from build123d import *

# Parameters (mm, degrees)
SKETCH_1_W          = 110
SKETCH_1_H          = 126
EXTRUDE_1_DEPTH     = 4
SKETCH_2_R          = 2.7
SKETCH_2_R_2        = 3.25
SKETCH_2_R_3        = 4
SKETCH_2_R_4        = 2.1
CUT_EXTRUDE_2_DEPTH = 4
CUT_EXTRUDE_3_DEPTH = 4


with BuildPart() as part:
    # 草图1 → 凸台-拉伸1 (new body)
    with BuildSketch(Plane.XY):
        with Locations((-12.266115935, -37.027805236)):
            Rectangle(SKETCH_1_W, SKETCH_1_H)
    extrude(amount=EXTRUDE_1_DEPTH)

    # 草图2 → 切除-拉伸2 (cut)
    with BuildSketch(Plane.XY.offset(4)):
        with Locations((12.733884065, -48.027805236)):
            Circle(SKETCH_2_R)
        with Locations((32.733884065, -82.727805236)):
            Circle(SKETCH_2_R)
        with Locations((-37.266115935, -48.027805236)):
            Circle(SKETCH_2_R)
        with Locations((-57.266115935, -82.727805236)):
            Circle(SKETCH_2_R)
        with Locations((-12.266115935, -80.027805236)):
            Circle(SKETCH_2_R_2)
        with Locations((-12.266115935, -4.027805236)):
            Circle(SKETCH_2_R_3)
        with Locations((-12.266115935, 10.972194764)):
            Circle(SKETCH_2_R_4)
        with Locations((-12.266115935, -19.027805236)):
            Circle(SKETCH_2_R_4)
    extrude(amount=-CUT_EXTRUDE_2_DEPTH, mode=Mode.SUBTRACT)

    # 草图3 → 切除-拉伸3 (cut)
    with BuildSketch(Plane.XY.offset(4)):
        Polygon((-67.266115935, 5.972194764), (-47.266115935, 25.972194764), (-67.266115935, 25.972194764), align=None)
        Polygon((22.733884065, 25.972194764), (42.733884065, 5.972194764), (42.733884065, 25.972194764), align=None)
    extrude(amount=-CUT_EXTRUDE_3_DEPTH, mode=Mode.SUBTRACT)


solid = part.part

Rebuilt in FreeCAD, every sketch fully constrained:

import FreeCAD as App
import Part
import Sketcher

V = App.Vector
Q = App.Units.Quantity

doc = App.newDocument("Part")
body = doc.addObject("PartDesign::Body", "Body")

# Sketch on XY plane
sketch1 = body.newObject("Sketcher::SketchObject", "Sketch")
sketch1.AttachmentSupport = (doc.getObject("XY_Plane"), [""])
sketch1.MapMode = "FlatFace"
sketch1.addGeometry(Part.LineSegment(V(-67, 26, 0), V(-67, -100, 0)), False)
sketch1.addGeometry(Part.LineSegment(V(-67, -100, 0), V(43, -100, 0)), False)
sketch1.addGeometry(Part.LineSegment(V(43, -100, 0), V(43, 26, 0)), False)
sketch1.addGeometry(Part.LineSegment(V(43, 26, 0), V(-67, 26, 0)), False)
sketch1.addConstraint(Sketcher.Constraint("Coincident", 0, 2, 1, 1))
sketch1.addConstraint(Sketcher.Constraint("Coincident", 1, 2, 2, 1))
sketch1.addConstraint(Sketcher.Constraint("Coincident", 2, 2, 3, 1))
sketch1.addConstraint(Sketcher.Constraint("Coincident", 3, 2, 0, 1))
sketch1.addConstraint(Sketcher.Constraint("Vertical", 0))
sketch1.addConstraint(Sketcher.Constraint("Horizontal", 1))
sketch1.addConstraint(Sketcher.Constraint("Vertical", 2))
sketch1.addConstraint(Sketcher.Constraint("Horizontal", 3))
sketch1.addConstraint(Sketcher.Constraint("DistanceX", 1, 1, 1, 2, Q("110 mm")))
sketch1.addConstraint(Sketcher.Constraint("DistanceY", 0, 2, 0, 1, Q("126 mm")))
sketch1.addConstraint(Sketcher.Constraint("DistanceX", 0, 2, -1, 1, Q("67.266116 mm")))
sketch1.addConstraint(Sketcher.Constraint("DistanceY", 0, 2, -1, 1, Q("100.027805 mm")))
pad1 = body.newObject("PartDesign::Pad", "Pad")
pad1.Profile = sketch1
pad1.Length = 4

# Sketch on XY plane
sketch2 = body.newObject("Sketcher::SketchObject", "Sketch001")
sketch2.AttachmentSupport = (doc.getObject("XY_Plane"), [""])
sketch2.MapMode = "FlatFace"
sketch2.AttachmentOffset = App.Placement(V(0, 0, 4), App.Rotation())
sketch2.addGeometry(Part.Circle(V(12.7, -48, 0), V(0, 0, 1), 2.7), False)
sketch2.addGeometry(Part.Circle(V(32.7, -82.7, 0), V(0, 0, 1), 2.7), False)
sketch2.addGeometry(Part.Circle(V(-37.3, -48, 0), V(0, 0, 1), 2.7), False)
sketch2.addGeometry(Part.Circle(V(-57.3, -82.7, 0), V(0, 0, 1), 2.7), False)
sketch2.addGeometry(Part.Circle(V(-12.3, -80, 0), V(0, 0, 1), 3.2), False)
sketch2.addGeometry(Part.Circle(V(-12.3, -4, 0), V(0, 0, 1), 4), False)
sketch2.addGeometry(Part.Circle(V(-12.3, 11, 0), V(0, 0, 1), 2.1), False)
sketch2.addGeometry(Part.Circle(V(-12.3, -19, 0), V(0, 0, 1), 2.1), False)
sketch2.addConstraint(Sketcher.Constraint("Equal", 0, 1))
sketch2.addConstraint(Sketcher.Constraint("Equal", 1, 2))
sketch2.addConstraint(Sketcher.Constraint("Equal", 2, 3))
sketch2.addConstraint(Sketcher.Constraint("Equal", 6, 7))
sketch2.addConstraint(Sketcher.Constraint("Horizontal", 0, 3, 2, 3))
sketch2.addConstraint(Sketcher.Constraint("Horizontal", 1, 3, 3, 3))
sketch2.addConstraint(Sketcher.Constraint("Vertical", 4, 3, 5, 3))
sketch2.addConstraint(Sketcher.Constraint("Vertical", 5, 3, 6, 3))
sketch2.addConstraint(Sketcher.Constraint("Vertical", 6, 3, 7, 3))
sketch2.addConstraint(Sketcher.Constraint("Diameter", 5, Q("8 mm")))
sketch2.addConstraint(Sketcher.Constraint("Diameter", 0, Q("5.4 mm")))
sketch2.addConstraint(Sketcher.Constraint("Diameter", 4, Q("6.5 mm")))
sketch2.addConstraint(Sketcher.Constraint("Diameter", 6, Q("4.2 mm")))
sketch2.addConstraint(Sketcher.Constraint("DistanceX", 0, 3, 1, 3, Q("20 mm")))
sketch2.addConstraint(Sketcher.Constraint("DistanceX", 2, 3, 0, 3, Q("50 mm")))
sketch2.addConstraint(Sketcher.Constraint("DistanceX", 3, 3, 2, 3, Q("20 mm")))
sketch2.addConstraint(Sketcher.Constraint("DistanceX", 4, 3, 0, 3, Q("25 mm")))
sketch2.addConstraint(Sketcher.Constraint("DistanceY", 4, 3, 0, 3, Q("32 mm")))
sketch2.addConstraint(Sketcher.Constraint("DistanceY", 0, 3, 5, 3, Q("44 mm")))
sketch2.addConstraint(Sketcher.Constraint("DistanceY", 5, 3, 6, 3, Q("15 mm")))
sketch2.addConstraint(Sketcher.Constraint("DistanceY", 7, 3, 5, 3, Q("15 mm")))
sketch2.addConstraint(Sketcher.Constraint("DistanceY", 1, 3, 0, 3, Q("34.7 mm")))
sketch2.addConstraint(Sketcher.Constraint("DistanceX", -1, 1, 0, 3, Q("12.733884 mm")))
sketch2.addConstraint(Sketcher.Constraint("DistanceY", 0, 3, -1, 1, Q("48.027805 mm")))
pocket1 = body.newObject("PartDesign::Pocket", "Pocket")
pocket1.Profile = sketch2
pocket1.Length = 4

# Sketch on XY plane
sketch3 = body.newObject("Sketcher::SketchObject", "Sketch002")
sketch3.AttachmentSupport = (doc.getObject("XY_Plane"), [""])
sketch3.MapMode = "FlatFace"
sketch3.AttachmentOffset = App.Placement(V(0, 0, 4), App.Rotation())
sketch3.addGeometry(Part.LineSegment(V(-67, 6, 0), V(-47, 26, 0)), False)
sketch3.addGeometry(Part.LineSegment(V(-47, 26, 0), V(-67, 26, 0)), False)
sketch3.addGeometry(Part.LineSegment(V(-67, 26, 0), V(-67, 6, 0)), False)
sketch3.addGeometry(Part.LineSegment(V(23, 26, 0), V(43, 6, 0)), False)
sketch3.addGeometry(Part.LineSegment(V(43, 6, 0), V(43, 26, 0)), False)
sketch3.addGeometry(Part.LineSegment(V(43, 26, 0), V(23, 26, 0)), False)
sketch3.addConstraint(Sketcher.Constraint("Coincident", 0, 2, 1, 1))
sketch3.addConstraint(Sketcher.Constraint("Coincident", 1, 2, 2, 1))
sketch3.addConstraint(Sketcher.Constraint("Coincident", 2, 2, 0, 1))
sketch3.addConstraint(Sketcher.Constraint("Coincident", 3, 2, 4, 1))
sketch3.addConstraint(Sketcher.Constraint("Coincident", 4, 2, 5, 1))
sketch3.addConstraint(Sketcher.Constraint("Coincident", 5, 2, 3, 1))
sketch3.addConstraint(Sketcher.Constraint("Horizontal", 1))
sketch3.addConstraint(Sketcher.Constraint("Vertical", 2))
sketch3.addConstraint(Sketcher.Constraint("Vertical", 4))
sketch3.addConstraint(Sketcher.Constraint("Horizontal", 5))
sketch3.addConstraint(Sketcher.Constraint("Perpendicular", 0, 3))
sketch3.addConstraint(Sketcher.Constraint("Horizontal", 2, 2, 3, 2))
sketch3.addConstraint(Sketcher.Constraint("Horizontal", 1, 2, 4, 2))
sketch3.addConstraint(Sketcher.Constraint("Equal", 1, 5))
sketch3.addConstraint(Sketcher.Constraint("DistanceX", 1, 2, 1, 1, Q("20 mm")))
sketch3.addConstraint(Sketcher.Constraint("DistanceX", 0, 2, 3, 2, Q("90 mm")))
sketch3.addConstraint(Sketcher.Constraint("DistanceX", 0, 2, -1, 1, Q("47.266116 mm")))
sketch3.addConstraint(Sketcher.Constraint("DistanceY", -1, 1, 0, 2, Q("25.972195 mm")))
pocket2 = body.newObject("PartDesign::Pocket", "Pocket001")
pocket2.Profile = sketch3
pocket2.Length = 4

doc.recompute()
